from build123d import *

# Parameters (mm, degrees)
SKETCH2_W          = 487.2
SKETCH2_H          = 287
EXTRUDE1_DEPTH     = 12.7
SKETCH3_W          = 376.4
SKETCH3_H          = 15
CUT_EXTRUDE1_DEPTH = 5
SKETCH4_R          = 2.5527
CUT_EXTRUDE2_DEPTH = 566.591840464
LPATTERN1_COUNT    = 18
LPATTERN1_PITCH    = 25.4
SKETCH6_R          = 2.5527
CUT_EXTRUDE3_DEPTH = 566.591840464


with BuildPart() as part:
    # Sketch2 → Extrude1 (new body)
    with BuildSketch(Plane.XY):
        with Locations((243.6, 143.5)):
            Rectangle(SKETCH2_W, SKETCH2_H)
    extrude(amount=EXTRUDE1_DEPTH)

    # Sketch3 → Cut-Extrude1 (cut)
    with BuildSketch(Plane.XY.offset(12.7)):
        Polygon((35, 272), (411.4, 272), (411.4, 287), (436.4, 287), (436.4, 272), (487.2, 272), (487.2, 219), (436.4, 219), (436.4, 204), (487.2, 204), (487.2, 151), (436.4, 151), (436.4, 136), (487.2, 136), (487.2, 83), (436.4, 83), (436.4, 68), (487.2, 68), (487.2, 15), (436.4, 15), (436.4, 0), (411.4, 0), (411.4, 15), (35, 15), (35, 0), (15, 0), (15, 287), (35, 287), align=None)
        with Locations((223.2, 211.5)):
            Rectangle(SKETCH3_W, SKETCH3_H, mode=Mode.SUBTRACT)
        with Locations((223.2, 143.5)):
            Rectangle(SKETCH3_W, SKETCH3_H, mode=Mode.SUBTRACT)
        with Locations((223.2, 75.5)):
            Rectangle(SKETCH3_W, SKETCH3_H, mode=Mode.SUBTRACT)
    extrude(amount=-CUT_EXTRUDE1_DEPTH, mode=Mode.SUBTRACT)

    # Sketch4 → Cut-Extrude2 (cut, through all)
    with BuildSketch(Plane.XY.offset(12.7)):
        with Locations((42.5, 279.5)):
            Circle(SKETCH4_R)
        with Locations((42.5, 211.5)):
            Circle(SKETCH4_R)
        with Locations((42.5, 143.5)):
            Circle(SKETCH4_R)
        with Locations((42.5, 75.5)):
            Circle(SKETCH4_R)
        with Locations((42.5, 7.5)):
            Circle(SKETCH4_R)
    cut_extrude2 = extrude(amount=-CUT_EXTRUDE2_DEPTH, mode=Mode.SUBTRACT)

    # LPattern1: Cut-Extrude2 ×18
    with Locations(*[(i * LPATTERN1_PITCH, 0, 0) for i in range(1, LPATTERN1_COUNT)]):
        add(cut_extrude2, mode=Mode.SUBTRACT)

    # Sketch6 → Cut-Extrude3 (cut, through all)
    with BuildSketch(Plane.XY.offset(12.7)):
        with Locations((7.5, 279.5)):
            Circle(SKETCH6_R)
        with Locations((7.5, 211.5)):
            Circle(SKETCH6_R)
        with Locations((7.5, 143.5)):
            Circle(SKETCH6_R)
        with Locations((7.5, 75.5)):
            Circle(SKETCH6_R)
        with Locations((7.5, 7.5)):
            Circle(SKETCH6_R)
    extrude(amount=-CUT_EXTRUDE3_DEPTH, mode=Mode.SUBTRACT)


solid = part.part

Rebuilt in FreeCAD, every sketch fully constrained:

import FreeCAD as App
import Part
import Sketcher
Q = App.Units.Quantity

doc = App.newDocument("Part")
body = doc.addObject("PartDesign::Body", "Body")

# Sketch on XY plane
sketch1 = doc.addObject("Sketcher::SketchObject", "Sketch")
body.addObject(sketch1)
sketch1.AttachmentSupport = (doc.XY_Plane, [""])
sketch1.MapMode = "FlatFace"
sketch1.addGeometry(Part.LineSegment(App.Vector(0, 287, 0), App.Vector(0, 0, 0)), False)
sketch1.addGeometry(Part.LineSegment(App.Vector(0, 0, 0), App.Vector(487.2, 0, 0)), False)
sketch1.addGeometry(Part.LineSegment(App.Vector(487.2, 0, 0), App.Vector(487.2, 287, 0)), False)
sketch1.addGeometry(Part.LineSegment(App.Vector(487.2, 287, 0), App.Vector(0, 287, 0)), False)
sketch1.addConstraint(Sketcher.Constraint("Coincident", 0, 2, 1, 1))
sketch1.addConstraint(Sketcher.Constraint("Coincident", 1, 2, 2, 1))
sketch1.addConstraint(Sketcher.Constraint("Coincident", 2, 2, 3, 1))
sketch1.addConstraint(Sketcher.Constraint("Coincident", 3, 2, 0, 1))
sketch1.addConstraint(Sketcher.Constraint("Vertical", 0))
sketch1.addConstraint(Sketcher.Constraint("Horizontal", 1))
sketch1.addConstraint(Sketcher.Constraint("Vertical", 2))
sketch1.addConstraint(Sketcher.Constraint("Horizontal", 3))
sketch1.addConstraint(Sketcher.Constraint("Coincident", 0, 2, -1, 1))
sketch1.addConstraint(Sketcher.Constraint("DistanceY", 0, 2, 0, 1, Q("287 mm")))
sketch1.addConstraint(Sketcher.Constraint("DistanceX", 1, 1, 1, 2, Q("487.2 mm")))
pad1 = doc.addObject("PartDesign::Pad", "Pad")
body.addObject(pad1)
pad1.Profile = sketch1
pad1.Length = 12.7

# Sketch on XY plane
sketch2 = doc.addObject("Sketcher::SketchObject", "Sketch001")
body.addObject(sketch2)
sketch2.AttachmentSupport = (doc.XY_Plane, [""])
sketch2.MapMode = "FlatFace"
sketch2.AttachmentOffset = App.Placement(App.Vector(0, 0, 12.7), App.Rotation())
sketch2.addGeometry(Part.LineSegment(App.Vector(411.4, 272, 0), App.Vector(35, 272, 0)), False)
sketch2.addGeometry(Part.LineSegment(App.Vector(35, 272, 0), App.Vector(35, 287, 0)), False)
sketch2.addGeometry(Part.LineSegment(App.Vector(35, 287, 0), App.Vector(15, 287, 0)), False)
sketch2.addGeometry(Part.LineSegment(App.Vector(15, 287, 0), App.Vector(15, 0, 0)), False)
sketch2.addGeometry(Part.LineSegment(App.Vector(15, 0, 0), App.Vector(35, 0, 0)), False)
sketch2.addGeometry(Part.LineSegment(App.Vector(35, 0, 0), App.Vector(35, 15, 0)), False)
sketch2.addGeometry(Part.LineSegment(App.Vector(35, 15, 0), App.Vector(411.4, 15, 0)), False)
sketch2.addGeometry(Part.LineSegment(App.Vector(411.4, 15, 0), App.Vector(411.4, 0, 0)), False)
sketch2.addGeometry(Part.LineSegment(App.Vector(411.4, 0, 0), App.Vector(436.4, 0, 0)), False)
sketch2.addGeometry(Part.LineSegment(App.Vector(436.4, 0, 0), App.Vector(436.4, 15, 0)), False)
sketch2.addGeometry(Part.LineSegment(App.Vector(436.4, 15, 0), App.Vector(487.2, 15, 0)), False)
sketch2.addGeometry(Part.LineSegment(App.Vector(487.2, 15, 0), App.Vector(487.2, 68, 0)), False)
sketch2.addGeometry(Part.LineSegment(App.Vector(487.2, 68, 0), App.Vector(436.4, 68, 0)), False)
sketch2.addGeometry(Part.LineSegment(App.Vector(436.4, 68, 0), App.Vector(436.4, 83, 0)), False)
sketch2.addGeometry(Part.LineSegment(App.Vector(436.4, 83, 0), App.Vector(487.2, 83, 0)), False)
sketch2.addGeometry(Part.LineSegment(App.Vector(487.2, 83, 0), App.Vector(487.2, 136, 0)), False)
sketch2.addGeometry(Part.LineSegment(App.Vector(487.2, 136, 0), App.Vector(436.4, 136, 0)), False)
sketch2.addGeometry(Part.LineSegment(App.Vector(436.4, 136, 0), App.Vector(436.4, 151, 0)), False)
sketch2.addGeometry(Part.LineSegment(App.Vector(436.4, 151, 0), App.Vector(487.2, 151, 0)), False)
sketch2.addGeometry(Part.LineSegment(App.Vector(487.2, 151, 0), App.Vector(487.2, 204, 0)), False)
sketch2.addGeometry(Part.LineSegment(App.Vector(487.2, 204, 0), App.Vector(436.4, 204, 0)), False)
sketch2.addGeometry(Part.LineSegment(App.Vector(436.4, 204, 0), App.Vector(436.4, 219, 0)), False)
sketch2.addGeometry(Part.LineSegment(App.Vector(436.4, 219, 0), App.Vector(487.2, 219, 0)), False)
sketch2.addGeometry(Part.LineSegment(App.Vector(487.2, 219, 0), App.Vector(487.2, 272, 0)), False)
sketch2.addGeometry(Part.LineSegment(App.Vector(487.2, 272, 0), App.Vector(436.4, 272, 0)), False)
sketch2.addGeometry(Part.LineSegment(App.Vector(436.4, 272, 0), App.Vector(436.4, 287, 0)), False)
sketch2.addGeometry(Part.LineSegment(App.Vector(436.4, 287, 0), App.Vector(411.4, 287, 0)), False)
sketch2.addGeometry(Part.LineSegment(App.Vector(411.4, 287, 0), App.Vector(411.4, 272, 0)), False)
sketch2.addGeometry(Part.LineSegment(App.Vector(35, 68, 0), App.Vector(35, 83, 0)), False)
sketch2.addGeometry(Part.LineSegment(App.Vector(35, 83, 0), App.Vector(411.4, 83, 0)), False)
sketch2.addGeometry(Part.LineSegment(App.Vector(411.4, 83, 0), App.Vector(411.4, 68, 0)), False)
sketch2.addGeometry(Part.LineSegment(App.Vector(411.4, 68, 0), App.Vector(35, 68, 0)), False)
sketch2.addGeometry(Part.LineSegment(App.Vector(35, 136, 0), App.Vector(35, 151, 0)), False)
sketch2.addGeometry(Part.LineSegment(App.Vector(35, 151, 0), App.Vector(411.4, 151, 0)), False)
sketch2.addGeometry(Part.LineSegment(App.Vector(411.4, 151, 0), App.Vector(411.4, 136, 0)), False)
sketch2.addGeometry(Part.LineSegment(App.Vector(411.4, 136, 0), App.Vector(35, 136, 0)), False)
sketch2.addGeometry(Part.LineSegment(App.Vector(35, 204, 0), App.Vector(35, 219, 0)), False)
sketch2.addGeometry(Part.LineSegment(App.Vector(35, 219, 0), App.Vector(411.4, 219, 0)), False)
sketch2.addGeometry(Part.LineSegment(App.Vector(411.4, 219, 0), App.Vector(411.4, 204, 0)), False)
sketch2.addGeometry(Part.LineSegment(App.Vector(411.4, 204, 0), App.Vector(35, 204, 0)), False)
sketch2.addConstraint(Sketcher.Constraint("Coincident", 0, 2, 1, 1))
sketch2.addConstraint(Sketcher.Constraint("Coincident", 1, 2, 2, 1))
sketch2.addConstraint(Sketcher.Constraint("Coincident", 2, 2, 3, 1))
sketch2.addConstraint(Sketcher.Constraint("Coincident", 3, 2, 4, 1))
sketch2.addConstraint(Sketcher.Constraint("Coincident", 4, 2, 5, 1))
sketch2.addConstraint(Sketcher.Constraint("Coincident", 5, 2, 6, 1))
sketch2.addConstraint(Sketcher.Constraint("Coincident", 6, 2, 7, 1))
sketch2.addConstraint(Sketcher.Constraint("Coincident", 7, 2, 8, 1))
sketch2.addConstraint(Sketcher.Constraint("Coincident", 8, 2, 9, 1))
sketch2.addConstraint(Sketcher.Constraint("Coincident", 9, 2, 10, 1))
sketch2.addConstraint(Sketcher.Constraint("Coincident", 10, 2, 11, 1))
sketch2.addConstraint(Sketcher.Constraint("Coincident", 11, 2, 12, 1))
sketch2.addConstraint(Sketcher.Constraint("Coincident", 12, 2, 13, 1))
sketch2.addConstraint(Sketcher.Constraint("Coincident", 13, 2, 14, 1))
sketch2.addConstraint(Sketcher.Constraint("Coincident", 14, 2, 15, 1))
sketch2.addConstraint(Sketcher.Constraint("Coincident", 15, 2, 16, 1))
sketch2.addConstraint(Sketcher.Constraint("Coincident", 16, 2, 17, 1))
sketch2.addConstraint(Sketcher.Constraint("Coincident", 17, 2, 18, 1))
sketch2.addConstraint(Sketcher.Constraint("Coincident", 18, 2, 19, 1))
sketch2.addConstraint(Sketcher.Constraint("Coincident", 19, 2, 20, 1))
sketch2.addConstraint(Sketcher.Constraint("Coincident", 20, 2, 21, 1))
sketch2.addConstraint(Sketcher.Constraint("Coincident", 21, 2, 22, 1))
sketch2.addConstraint(Sketcher.Constraint("Coincident", 22, 2, 23, 1))
sketch2.addConstraint(Sketcher.Constraint("Coincident", 23, 2, 24, 1))
sketch2.addConstraint(Sketcher.Constraint("Coincident", 24, 2, 25, 1))
sketch2.addConstraint(Sketcher.Constraint("Coincident", 25, 2, 26, 1))
sketch2.addConstraint(Sketcher.Constraint("Coincident", 26, 2, 27, 1))
sketch2.addConstraint(Sketcher.Constraint("Coincident", 27, 2, 0, 1))
sketch2.addConstraint(Sketcher.Constraint("Coincident", 28, 2, 29, 1))
sketch2.addConstraint(Sketcher.Constraint("Coincident", 29, 2, 30, 1))
sketch2.addConstraint(Sketcher.Constraint("Coincident", 30, 2, 31, 1))
sketch2.addConstraint(Sketcher.Constraint("Coincident", 31, 2, 28, 1))
sketch2.addConstraint(Sketcher.Constraint("Coincident", 32, 2, 33, 1))
sketch2.addConstraint(Sketcher.Constraint("Coincident", 33, 2, 34, 1))
sketch2.addConstraint(Sketcher.Constraint("Coincident", 34, 2, 35, 1))
sketch2.addConstraint(Sketcher.Constraint("Coincident", 35, 2, 32, 1))
sketch2.addConstraint(Sketcher.Constraint("Coincident", 36, 2, 37, 1))
sketch2.addConstraint(Sketcher.Constraint("Coincident", 37, 2, 38, 1))
sketch2.addConstraint(Sketcher.Constraint("Coincident", 38, 2, 39, 1))
sketch2.addConstraint(Sketcher.Constraint("Coincident", 39, 2, 36, 1))
sketch2.addConstraint(Sketcher.Constraint("Horizontal", 0))
sketch2.addConstraint(Sketcher.Constraint("Vertical", 1))
sketch2.addConstraint(Sketcher.Constraint("Horizontal", 2))
sketch2.addConstraint(Sketcher.Constraint("Vertical", 3))
sketch2.addConstraint(Sketcher.Constraint("Horizontal", 4))
sketch2.addConstraint(Sketcher.Constraint("Vertical", 5))
sketch2.addConstraint(Sketcher.Constraint("Horizontal", 6))
sketch2.addConstraint(Sketcher.Constraint("Vertical", 7))
sketch2.addConstraint(Sketcher.Constraint("Horizontal", 8))
sketch2.addConstraint(Sketcher.Constraint("Vertical", 9))
sketch2.addConstraint(Sketcher.Constraint("Horizontal", 10))
sketch2.addConstraint(Sketcher.Constraint("Vertical", 11))
sketch2.addConstraint(Sketcher.Constraint("Horizontal", 12))
sketch2.addConstraint(Sketcher.Constraint("Vertical", 13))
sketch2.addConstraint(Sketcher.Constraint("Horizontal", 14))
sketch2.addConstraint(Sketcher.Constraint("Vertical", 15))
sketch2.addConstraint(Sketcher.Constraint("Horizontal", 16))
sketch2.addConstraint(Sketcher.Constraint("Vertical", 17))
sketch2.addConstraint(Sketcher.Constraint("Horizontal", 18))
sketch2.addConstraint(Sketcher.Constraint("Vertical", 19))
sketch2.addConstraint(Sketcher.Constraint("Horizontal", 20))
sketch2.addConstraint(Sketcher.Constraint("Vertical", 21))
sketch2.addConstraint(Sketcher.Constraint("Horizontal", 22))
sketch2.addConstraint(Sketcher.Constraint("Vertical", 23))
sketch2.addConstraint(Sketcher.Constraint("Horizontal", 24))
sketch2.addConstraint(Sketcher.Constraint("Vertical", 25))
sketch2.addConstraint(Sketcher.Constraint("Horizontal", 26))
sketch2.addConstraint(Sketcher.Constraint("Vertical", 27))
sketch2.addConstraint(Sketcher.Constraint("Vertical", 28))
sketch2.addConstraint(Sketcher.Constraint("Horizontal", 29))
sketch2.addConstraint(Sketcher.Constraint("Vertical", 30))
sketch2.addConstraint(Sketcher.Constraint("Horizontal", 31))
sketch2.addConstraint(Sketcher.Constraint("Vertical", 32))
sketch2.addConstraint(Sketcher.Constraint("Horizontal", 33))
sketch2.addConstraint(Sketcher.Constraint("Vertical", 34))
sketch2.addConstraint(Sketcher.Constraint("Horizontal", 35))
sketch2.addConstraint(Sketcher.Constraint("Vertical", 36))
sketch2.addConstraint(Sketcher.Constraint("Horizontal", 37))
sketch2.addConstraint(Sketcher.Constraint("Vertical", 38))
sketch2.addConstraint(Sketcher.Constraint("Horizontal", 39))
sketch2.addConstraint(Sketcher.Constraint("PointOnObject", 3, 2, -1))
sketch2.addConstraint(Sketcher.Constraint("PointOnObject", 7, 2, -1))
sketch2.addConstraint(Sketcher.Constraint("Horizontal", 6, 2, 9, 2))
sketch2.addConstraint(Sketcher.Constraint("Horizontal", 0, 2, 23, 2))
sketch2.addConstraint(Sketcher.Constraint("Horizontal", 2, 2, 25, 2))
sketch2.addConstraint(Sketcher.Constraint("Horizontal", 14, 2, 28, 2))
sketch2.addConstraint(Sketcher.Constraint("Horizontal", 12, 2, 30, 2))
sketch2.addConstraint(Sketcher.Constraint("Horizontal", 18, 2, 32, 2))
sketch2.addConstraint(Sketcher.Constraint("Horizontal", 16, 2, 34, 2))
sketch2.addConstraint(Sketcher.Constraint("Horizontal", 22, 2, 36, 2))
sketch2.addConstraint(Sketcher.Constraint("Horizontal", 20, 2, 38, 2))
sketch2.addConstraint(Sketcher.Constraint("Vertical", 1, 2, 4, 2))
sketch2.addConstraint(Sketcher.Constraint("Vertical", 9, 2, 12, 2))
sketch2.addConstraint(Sketcher.Constraint("Vertical", 11, 2, 14, 2))
sketch2.addConstraint(Sketcher.Constraint("Vertical", 13, 2, 16, 2))
sketch2.addConstraint(Sketcher.Constraint("Vertical", 15, 2, 18, 2))
sketch2.addConstraint(Sketcher.Constraint("Vertical", 17, 2, 20, 2))
sketch2.addConstraint(Sketcher.Constraint("Vertical", 19, 2, 22, 2))
sketch2.addConstraint(Sketcher.Constraint("Vertical", 21, 2, 24, 2))
sketch2.addConstraint(Sketcher.Constraint("Vertical", 7, 2, 26, 2))
sketch2.addConstraint(Sketcher.Constraint("Vertical", 5, 2, 28, 2))
sketch2.addConstraint(Sketcher.Constraint("Vertical", 27, 2, 29, 2))
sketch2.addConstraint(Sketcher.Constraint("Vertical", 31, 2, 32, 2))
sketch2.addConstraint(Sketcher.Constraint("Vertical", 30, 2, 33, 2))
sketch2.addConstraint(Sketcher.Constraint("Vertical", 35, 2, 36, 2))
sketch2.addConstraint(Sketcher.Constraint("Vertical", 34, 2, 37, 2))
sketch2.addConstraint(Sketcher.Constraint("Equal", 1, 5))
sketch2.addConstraint(Sketcher.Constraint("Equal", 9, 13))
sketch2.addConstraint(Sketcher.Constraint("Equal", 11, 15))
sketch2.addConstraint(Sketcher.Constraint("Equal", 13, 17))
sketch2.addConstraint(Sketcher.Constraint("Equal", 15, 19))
sketch2.addConstraint(Sketcher.Constraint("Equal", 17, 21))
sketch2.addConstraint(Sketcher.Constraint("Equal", 19, 23))
sketch2.addConstraint(Sketcher.Constraint("DistanceX", 2, 2, 2, 1, Q("20 mm")))
sketch2.addConstraint(Sketcher.Constraint("DistanceX", 8, 1, 8, 2, Q("25 mm")))
sketch2.addConstraint(Sketcher.Constraint("DistanceY", 1, 1, 1, 2, Q("15 mm")))
sketch2.addConstraint(Sketcher.Constraint("DistanceY", 3, 2, 3, 1, Q("287 mm")))
sketch2.addConstraint(Sketcher.Constraint("DistanceX", 0, 2, 0, 1, Q("376.4 mm")))
sketch2.addConstraint(Sketcher.Constraint("DistanceX", 10, 1, 10, 2, Q("50.8 mm")))
sketch2.addConstraint(Sketcher.Constraint("DistanceX", -1, 1, 0, 2, Q("35 mm")))
pocket1 = doc.addObject("PartDesign::Pocket", "Pocket")
body.addObject(pocket1)
pocket1.Profile = sketch2
pocket1.Length = 5

# Sketch on XY plane
sketch3 = doc.addObject("Sketcher::SketchObject", "Sketch002")
body.addObject(sketch3)
sketch3.AttachmentSupport = (doc.XY_Plane, [""])
sketch3.MapMode = "FlatFace"
sketch3.AttachmentOffset = App.Placement(App.Vector(0, 0, 12.7), App.Rotation())
sketch3.addGeometry(Part.Circle(App.Vector(42.5, 279.5, 0), App.Vector(0, 0, 1), 2.5527), False)
sketch3.addGeometry(Part.Circle(App.Vector(42.5, 211.5, 0), App.Vector(0, 0, 1), 2.5527), False)
sketch3.addGeometry(Part.Circle(App.Vector(42.5, 143.5, 0), App.Vector(0, 0, 1), 2.5527), False)
sketch3.addGeometry(Part.Circle(App.Vector(42.5, 75.5, 0), App.Vector(0, 0, 1), 2.5527), False)
sketch3.addGeometry(Part.Circle(App.Vector(42.5, 7.5, 0), App.Vector(0, 0, 1), 2.5527), False)
sketch3.addConstraint(Sketcher.Constraint("Equal", 0, 1))
sketch3.addConstraint(Sketcher.Constraint("Equal", 1, 2))
sketch3.addConstraint(Sketcher.Constraint("Equal", 2, 3))
sketch3.addConstraint(Sketcher.Constraint("Equal", 3, 4))
sketch3.addConstraint(Sketcher.Constraint("Vertical", 0, 3, 1, 3))
sketch3.addConstraint(Sketcher.Constraint("Vertical", 1, 3, 2, 3))
sketch3.addConstraint(Sketcher.Constraint("Vertical", 2, 3, 3, 3))
sketch3.addConstraint(Sketcher.Constraint("Vertical", 3, 3, 4, 3))
sketch3.addConstraint(Sketcher.Constraint("DistanceY", 1, 3, 0, 3, Q("68 mm")))
sketch3.addConstraint(Sketcher.Constraint("DistanceY", 2, 3, 1, 3, Q("68 mm")))
sketch3.addConstraint(Sketcher.Constraint("DistanceY", 3, 3, 2, 3, Q("68 mm")))
sketch3.addConstraint(Sketcher.Constraint("DistanceY", 4, 3, 3, 3, Q("68 mm")))
sketch3.addConstraint(Sketcher.Constraint("Diameter", 0, Q("5.1054 mm")))
sketch3.addConstraint(Sketcher.Constraint("DistanceX", -1, 1, 0, 3, Q("42.5 mm")))
sketch3.addConstraint(Sketcher.Constraint("DistanceY", -1, 1, 0, 3, Q("279.5 mm")))
pocket2 = doc.addObject("PartDesign::Pocket", "Pocket001")
body.addObject(pocket2)
pocket2.Profile = sketch3
pocket2.Type = "ThroughAll"
doc.recompute()

linearpattern = doc.addObject("PartDesign::LinearPattern", "LinearPattern")
body.addObject(linearpattern)
linearpattern.Originals = [pocket2]
linearpattern.Direction = (doc.X_Axis, [""])
linearpattern.Mode = "offset"
linearpattern.Offset = 25.4
linearpattern.Occurrences = 18
body.Tip = linearpattern

# Sketch on XY plane
sketch4 = doc.addObject("Sketcher::SketchObject", "Sketch003")
body.addObject(sketch4)
sketch4.AttachmentSupport = (doc.XY_Plane, [""])
sketch4.MapMode = "FlatFace"
sketch4.AttachmentOffset = App.Placement(App.Vector(0, 0, 12.7), App.Rotation())
sketch4.addGeometry(Part.Circle(App.Vector(7.5, 279.5, 0), App.Vector(0, 0, 1), 2.5527), False)
sketch4.addGeometry(Part.Circle(App.Vector(7.5, 211.5, 0), App.Vector(0, 0, 1), 2.5527), False)
sketch4.addGeometry(Part.Circle(App.Vector(7.5, 143.5, 0), App.Vector(0, 0, 1), 2.5527), False)
sketch4.addGeometry(Part.Circle(App.Vector(7.5, 75.5, 0), App.Vector(0, 0, 1), 2.5527), False)
sketch4.addGeometry(Part.Circle(App.Vector(7.5, 7.5, 0), App.Vector(0, 0, 1), 2.5527), False)
sketch4.addConstraint(Sketcher.Constraint("Equal", 0, 1))
sketch4.addConstraint(Sketcher.Constraint("Equal", 1, 2))
sketch4.addConstraint(Sketcher.Constraint("Equal", 2, 3))
sketch4.addConstraint(Sketcher.Constraint("Equal", 3, 4))
sketch4.addConstraint(Sketcher.Constraint("Vertical", 0, 3, 1, 3))
sketch4.addConstraint(Sketcher.Constraint("Vertical", 1, 3, 2, 3))
sketch4.addConstraint(Sketcher.Constraint("Vertical", 2, 3, 3, 3))
sketch4.addConstraint(Sketcher.Constraint("Vertical", 3, 3, 4, 3))
sketch4.addConstraint(Sketcher.Constraint("DistanceY", 1, 3, 0, 3, Q("68 mm")))
sketch4.addConstraint(Sketcher.Constraint("DistanceY", 2, 3, 1, 3, Q("68 mm")))
sketch4.addConstraint(Sketcher.Constraint("DistanceY", 3, 3, 2, 3, Q("68 mm")))
sketch4.addConstraint(Sketcher.Constraint("DistanceY", 4, 3, 3, 3, Q("68 mm")))
sketch4.addConstraint(Sketcher.Constraint("Diameter", 0, Q("5.1054 mm")))
sketch4.addConstraint(Sketcher.Constraint("DistanceX", -1, 1, 0, 3, Q("7.5 mm")))
sketch4.addConstraint(Sketcher.Constraint("DistanceY", -1, 1, 0, 3, Q("279.5 mm")))
pocket3 = doc.addObject("PartDesign::Pocket", "Pocket002")
body.addObject(pocket3)
pocket3.Profile = sketch4
pocket3.Type = "ThroughAll"

doc.recompute()
